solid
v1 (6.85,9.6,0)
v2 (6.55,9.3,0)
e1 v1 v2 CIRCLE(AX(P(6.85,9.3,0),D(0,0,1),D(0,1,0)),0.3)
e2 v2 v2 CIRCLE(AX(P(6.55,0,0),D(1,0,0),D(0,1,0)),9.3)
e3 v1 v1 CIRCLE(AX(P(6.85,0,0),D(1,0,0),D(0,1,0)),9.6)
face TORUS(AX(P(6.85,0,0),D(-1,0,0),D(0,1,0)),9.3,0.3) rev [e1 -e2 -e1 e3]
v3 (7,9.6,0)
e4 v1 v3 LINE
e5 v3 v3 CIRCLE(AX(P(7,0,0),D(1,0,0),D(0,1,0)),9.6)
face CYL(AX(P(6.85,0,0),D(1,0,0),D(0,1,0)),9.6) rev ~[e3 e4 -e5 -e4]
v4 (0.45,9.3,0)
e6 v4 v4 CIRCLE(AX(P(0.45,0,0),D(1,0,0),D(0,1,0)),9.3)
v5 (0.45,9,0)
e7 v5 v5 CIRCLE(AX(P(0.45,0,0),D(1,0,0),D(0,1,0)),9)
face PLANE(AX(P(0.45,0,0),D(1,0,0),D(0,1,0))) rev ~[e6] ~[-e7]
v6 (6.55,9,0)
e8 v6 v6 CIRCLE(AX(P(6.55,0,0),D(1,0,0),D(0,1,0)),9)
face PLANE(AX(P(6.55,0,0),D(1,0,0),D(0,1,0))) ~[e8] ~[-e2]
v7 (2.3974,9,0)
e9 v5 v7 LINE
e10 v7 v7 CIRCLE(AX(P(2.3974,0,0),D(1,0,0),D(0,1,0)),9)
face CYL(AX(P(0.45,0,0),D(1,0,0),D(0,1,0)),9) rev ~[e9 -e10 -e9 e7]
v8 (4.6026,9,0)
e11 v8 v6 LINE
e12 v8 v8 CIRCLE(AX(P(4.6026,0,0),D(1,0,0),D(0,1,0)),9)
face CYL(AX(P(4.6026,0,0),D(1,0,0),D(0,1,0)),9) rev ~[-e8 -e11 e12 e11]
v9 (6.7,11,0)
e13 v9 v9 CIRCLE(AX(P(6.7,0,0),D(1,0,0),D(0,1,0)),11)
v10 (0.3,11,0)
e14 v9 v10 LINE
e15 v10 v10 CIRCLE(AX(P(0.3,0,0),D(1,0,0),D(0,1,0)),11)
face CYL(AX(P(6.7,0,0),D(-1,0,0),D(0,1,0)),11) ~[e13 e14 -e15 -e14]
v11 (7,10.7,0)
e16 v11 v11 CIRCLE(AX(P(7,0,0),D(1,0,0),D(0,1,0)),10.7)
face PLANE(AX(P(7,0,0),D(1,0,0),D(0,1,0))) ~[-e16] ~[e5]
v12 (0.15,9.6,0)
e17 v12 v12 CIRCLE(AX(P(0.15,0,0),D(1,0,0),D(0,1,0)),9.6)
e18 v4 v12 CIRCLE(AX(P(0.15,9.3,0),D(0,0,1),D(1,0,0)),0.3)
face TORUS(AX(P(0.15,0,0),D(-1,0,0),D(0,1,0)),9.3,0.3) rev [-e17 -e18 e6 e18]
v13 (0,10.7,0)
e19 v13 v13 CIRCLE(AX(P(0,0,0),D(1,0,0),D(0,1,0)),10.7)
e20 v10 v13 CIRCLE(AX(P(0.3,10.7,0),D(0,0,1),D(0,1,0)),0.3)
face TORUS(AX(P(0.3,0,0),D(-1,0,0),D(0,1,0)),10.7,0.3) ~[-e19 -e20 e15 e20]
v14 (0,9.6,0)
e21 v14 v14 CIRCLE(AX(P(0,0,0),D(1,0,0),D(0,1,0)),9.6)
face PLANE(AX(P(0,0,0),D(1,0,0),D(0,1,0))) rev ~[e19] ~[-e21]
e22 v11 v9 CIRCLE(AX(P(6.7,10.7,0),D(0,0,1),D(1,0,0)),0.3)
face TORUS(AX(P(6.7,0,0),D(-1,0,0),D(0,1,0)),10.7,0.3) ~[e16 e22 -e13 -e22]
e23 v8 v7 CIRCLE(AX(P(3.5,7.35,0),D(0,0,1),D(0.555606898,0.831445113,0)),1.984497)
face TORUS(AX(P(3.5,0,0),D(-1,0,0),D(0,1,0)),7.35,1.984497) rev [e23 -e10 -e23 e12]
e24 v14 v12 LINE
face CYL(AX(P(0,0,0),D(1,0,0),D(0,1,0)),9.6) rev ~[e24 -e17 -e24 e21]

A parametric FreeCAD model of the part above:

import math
import FreeCAD as App
import Part
import Sketcher

V = App.Vector
Q = App.Units.Quantity

doc = App.newDocument("Part")
body = doc.addObject("PartDesign::Body", "Body")

# Sketch on XY plane
sketch1 = body.newObject("Sketcher::SketchObject", "Sketch")
sketch1.AttachmentSupport = (doc.getObject("XY_Plane"), [""])
sketch1.MapMode = "FlatFace"
sketch1.addGeometry(Part.ArcOfCircle(Part.Circle(V(0.3, 10.7, 0), V(0, 0, 1), 0.3), math.radians(90), math.radians(180)), False)
sketch1.addGeometry(Part.LineSegment(V(0, 10.7, 0), V(0, 9.6, 0)), False)
sketch1.addGeometry(Part.LineSegment(V(0, 9.6, 0), V(0.15, 9.6, 0)), False)
sketch1.addGeometry(Part.ArcOfCircle(Part.Circle(V(0.15, 9.3, 0), V(0, 0, 1), 0.3), math.radians(0), math.radians(90)), False)
sketch1.addGeometry(Part.LineSegment(V(0.45, 9.3, 0), V(0.45, 9, 0)), False)
sketch1.addGeometry(Part.LineSegment(V(0.45, 9, 0), V(2.3974, 9, 0)), False)
sketch1.addGeometry(Part.ArcOfCircle(Part.Circle(V(3.5, 7.35, 0), V(0, 0, 1), 1.984497), math.radians(56.247473), math.radians(123.752527)), False)
sketch1.addGeometry(Part.LineSegment(V(4.6026, 9, 0), V(6.55, 9, 0)), False)
sketch1.addGeometry(Part.LineSegment(V(6.55, 9, 0), V(6.55, 9.3, 0)), False)
sketch1.addGeometry(Part.ArcOfCircle(Part.Circle(V(6.85, 9.3, 0), V(0, 0, 1), 0.3), math.radians(90), math.radians(180)), False)
sketch1.addGeometry(Part.LineSegment(V(6.85, 9.6, 0), V(7, 9.6, 0)), False)
sketch1.addGeometry(Part.LineSegment(V(7, 9.6, 0), V(7, 10.7, 0)), False)
sketch1.addGeometry(Part.ArcOfCircle(Part.Circle(V(6.7, 10.7, 0), V(0, 0, 1), 0.3), math.radians(0), math.radians(90)), False)
sketch1.addGeometry(Part.LineSegment(V(6.7, 11, 0), V(0.3, 11, 0)), False)
sketch1.addConstraint(Sketcher.Constraint("Tangent", 0, 2, 1, 1))
sketch1.addConstraint(Sketcher.Constraint("Coincident", 1, 2, 2, 1))
sketch1.addConstraint(Sketcher.Constraint("Tangent", 2, 2, 3, 2))
sketch1.addConstraint(Sketcher.Constraint("Tangent", 3, 1, 4, 1))
sketch1.addConstraint(Sketcher.Constraint("Coincident", 4, 2, 5, 1))
sketch1.addConstraint(Sketcher.Constraint("Coincident", 5, 2, 6, 2))
sketch1.addConstraint(Sketcher.Constraint("Coincident", 6, 1, 7, 1))
sketch1.addConstraint(Sketcher.Constraint("Coincident", 7, 2, 8, 1))
sketch1.addConstraint(Sketcher.Constraint("Tangent", 8, 2, 9, 2))
sketch1.addConstraint(Sketcher.Constraint("Tangent", 9, 1, 10, 1))
sketch1.addConstraint(Sketcher.Constraint("Coincident", 10, 2, 11, 1))
sketch1.addConstraint(Sketcher.Constraint("Tangent", 11, 2, 12, 1))
sketch1.addConstraint(Sketcher.Constraint("Tangent", 12, 2, 13, 1))
sketch1.addConstraint(Sketcher.Constraint("Tangent", 13, 2, 0, 1))
sketch1.addConstraint(Sketcher.Constraint("Vertical", 1))
sketch1.addConstraint(Sketcher.Constraint("Horizontal", 2))
sketch1.addConstraint(Sketcher.Constraint("Vertical", 4))
sketch1.addConstraint(Sketcher.Constraint("Horizontal", 5))
sketch1.addConstraint(Sketcher.Constraint("Horizontal", 7))
sketch1.addConstraint(Sketcher.Constraint("Vertical", 8))
sketch1.addConstraint(Sketcher.Constraint("Horizontal", 10))
sketch1.addConstraint(Sketcher.Constraint("Vertical", 11))
sketch1.addConstraint(Sketcher.Constraint("Horizontal", 13))
sketch1.addConstraint(Sketcher.Constraint("Equal", 0, 3))
sketch1.addConstraint(Sketcher.Constraint("Equal", 3, 9))
sketch1.addConstraint(Sketcher.Constraint("Equal", 9, 12))
sketch1.addConstraint(Sketcher.Constraint("PointOnObject", 0, 2, -2))
sketch1.addConstraint(Sketcher.Constraint("Horizontal", 3, 3, 9, 3))
sketch1.addConstraint(Sketcher.Constraint("Horizontal", 5, 2, 6, 1))
sketch1.addConstraint(Sketcher.Constraint("Equal", 5, 7))
sketch1.addConstraint(Sketcher.Constraint("Equal", 2, 10))
sketch1.addConstraint(Sketcher.Constraint("Radius", 0, Q("0.3 mm")))
sketch1.addConstraint(Sketcher.Constraint("DistanceX", 13, 2, 13, 1, Q("6.4 mm")))
sketch1.addConstraint(Sketcher.Constraint("DistanceY", 1, 2, 1, 1, Q("1.1 mm")))
sketch1.addConstraint(Sketcher.Constraint("DistanceY", 4, 2, 4, 1, Q("0.3 mm")))
sketch1.addConstraint(Sketcher.Constraint("DistanceY", -1, 1, 4, 2, Q("9 mm")))
sketch1.addConstraint(Sketcher.Constraint("DistanceX", 2, 1, 2, 2, Q("0.15 mm")))
sketch1.addConstraint(Sketcher.Constraint("Radius", 6, Q("1.9845 mm")))
sketch1.addConstraint(Sketcher.Constraint("DistanceY", -1, 1, 6, 3, Q("7.35 mm")))
revolution = body.newObject("PartDesign::Revolution", "Revolution")
revolution.Profile = sketch1
revolution.ReferenceAxis = (sketch1, ["H_Axis"])
revolution.Angle = 360

doc.recompute()
